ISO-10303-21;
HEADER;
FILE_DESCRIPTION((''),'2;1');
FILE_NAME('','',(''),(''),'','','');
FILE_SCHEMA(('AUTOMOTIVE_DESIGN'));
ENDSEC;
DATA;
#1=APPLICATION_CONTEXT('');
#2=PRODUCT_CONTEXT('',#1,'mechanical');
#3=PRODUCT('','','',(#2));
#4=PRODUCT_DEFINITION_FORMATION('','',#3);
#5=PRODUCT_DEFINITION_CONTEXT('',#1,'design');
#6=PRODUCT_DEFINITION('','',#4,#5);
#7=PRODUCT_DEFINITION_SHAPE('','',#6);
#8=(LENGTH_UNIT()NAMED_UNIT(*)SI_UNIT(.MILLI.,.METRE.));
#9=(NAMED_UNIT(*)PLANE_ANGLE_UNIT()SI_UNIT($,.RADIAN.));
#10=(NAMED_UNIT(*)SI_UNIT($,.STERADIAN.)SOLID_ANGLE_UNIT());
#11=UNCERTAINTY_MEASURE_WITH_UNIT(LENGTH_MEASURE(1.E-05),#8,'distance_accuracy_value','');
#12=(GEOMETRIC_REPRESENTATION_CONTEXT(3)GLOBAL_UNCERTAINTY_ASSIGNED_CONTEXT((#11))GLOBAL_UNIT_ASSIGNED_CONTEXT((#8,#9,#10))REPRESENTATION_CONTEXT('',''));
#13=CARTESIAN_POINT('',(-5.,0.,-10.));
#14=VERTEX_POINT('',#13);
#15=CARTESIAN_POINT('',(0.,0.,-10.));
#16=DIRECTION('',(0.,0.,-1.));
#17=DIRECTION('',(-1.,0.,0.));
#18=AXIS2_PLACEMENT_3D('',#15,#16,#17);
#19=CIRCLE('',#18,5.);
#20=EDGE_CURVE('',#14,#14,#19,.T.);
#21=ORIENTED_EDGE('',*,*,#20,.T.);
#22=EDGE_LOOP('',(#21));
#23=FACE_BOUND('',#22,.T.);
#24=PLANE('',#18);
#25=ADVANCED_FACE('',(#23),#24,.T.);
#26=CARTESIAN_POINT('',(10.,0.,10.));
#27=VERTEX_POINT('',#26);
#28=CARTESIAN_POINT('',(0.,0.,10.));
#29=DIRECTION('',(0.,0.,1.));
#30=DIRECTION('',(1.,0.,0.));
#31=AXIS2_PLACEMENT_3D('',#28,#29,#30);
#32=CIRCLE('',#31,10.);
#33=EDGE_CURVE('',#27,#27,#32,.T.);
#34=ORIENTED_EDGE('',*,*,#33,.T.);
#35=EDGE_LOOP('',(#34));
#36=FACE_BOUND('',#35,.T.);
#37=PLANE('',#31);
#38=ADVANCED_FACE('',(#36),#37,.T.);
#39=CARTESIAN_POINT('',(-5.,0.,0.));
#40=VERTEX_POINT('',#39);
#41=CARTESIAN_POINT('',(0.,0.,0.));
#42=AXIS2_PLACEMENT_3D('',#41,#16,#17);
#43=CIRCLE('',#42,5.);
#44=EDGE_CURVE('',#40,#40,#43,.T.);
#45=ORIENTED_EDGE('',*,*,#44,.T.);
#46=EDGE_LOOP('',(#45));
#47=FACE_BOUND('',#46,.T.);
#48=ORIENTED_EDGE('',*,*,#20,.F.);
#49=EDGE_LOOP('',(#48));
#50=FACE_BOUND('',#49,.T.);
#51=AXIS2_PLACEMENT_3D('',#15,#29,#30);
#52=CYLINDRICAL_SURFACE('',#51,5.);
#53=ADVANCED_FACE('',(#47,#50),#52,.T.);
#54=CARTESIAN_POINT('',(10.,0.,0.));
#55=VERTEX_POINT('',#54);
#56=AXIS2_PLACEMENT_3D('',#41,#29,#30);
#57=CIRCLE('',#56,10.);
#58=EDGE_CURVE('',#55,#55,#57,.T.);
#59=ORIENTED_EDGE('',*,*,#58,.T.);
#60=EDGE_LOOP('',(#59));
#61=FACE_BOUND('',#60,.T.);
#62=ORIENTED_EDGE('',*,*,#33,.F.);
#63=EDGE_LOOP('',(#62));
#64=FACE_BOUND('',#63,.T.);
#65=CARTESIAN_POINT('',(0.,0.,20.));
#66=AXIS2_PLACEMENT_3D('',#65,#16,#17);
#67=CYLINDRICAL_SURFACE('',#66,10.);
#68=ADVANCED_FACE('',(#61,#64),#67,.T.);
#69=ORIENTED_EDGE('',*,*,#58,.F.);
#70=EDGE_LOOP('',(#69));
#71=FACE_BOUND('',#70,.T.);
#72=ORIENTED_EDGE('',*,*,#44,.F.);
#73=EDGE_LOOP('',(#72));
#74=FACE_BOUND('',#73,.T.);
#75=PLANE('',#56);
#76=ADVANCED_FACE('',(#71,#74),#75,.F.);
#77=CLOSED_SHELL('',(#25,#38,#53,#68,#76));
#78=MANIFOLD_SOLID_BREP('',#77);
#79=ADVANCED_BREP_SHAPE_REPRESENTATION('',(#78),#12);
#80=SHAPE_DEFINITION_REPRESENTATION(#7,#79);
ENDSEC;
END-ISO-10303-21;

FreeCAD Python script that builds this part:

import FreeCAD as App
import Part
import Sketcher

V = App.Vector

doc = App.newDocument("Part")
body = doc.addObject("PartDesign::Body", "Body")

sketch1 = body.newObject("Sketcher::SketchObject", "Sketch")
sketch1.AttachmentSupport = (doc.getObject("XY_Plane"), [""])
sketch1.MapMode = "FlatFace"
sketch1.addGeometry(Part.Circle(V(0, 0, 0), V(0, 0, 1), 10), False)
sketch1.addConstraint([
    Sketcher.Constraint("Coincident", 0, 3, -1, 1),
    Sketcher.Constraint("Diameter", 0, 20.0),
])
pad1 = body.newObject("PartDesign::Pad", "Pad")
pad1.Profile = sketch1
pad1.Length = 20

sketch2 = body.newObject("Sketcher::SketchObject", "Sketch001")
sketch2.AttachmentSupport = (doc.getObject("XY_Plane"), [""])
sketch2.MapMode = "FlatFace"
sketch2.addGeometry(Part.Circle(V(0, 0, 0), V(0, 0, 1), 5), False)
sketch2.addConstraint([
    Sketcher.Constraint("Coincident", 0, 3, -1, 1),
    Sketcher.Constraint("Diameter", 0, 10.0),
])
pad2 = body.newObject("PartDesign::Pad", "Pad001")
pad2.Profile = sketch2
pad2.Length = 10
pad2.Reversed = True

sketch3 = body.newObject("Sketcher::SketchObject", "Sketch002")
sketch3.AttachmentSupport = (doc.getObject("XY_Plane"), [""])
sketch3.MapMode = "FlatFace"
sketch3.AttachmentOffset = App.Placement(V(0, 0, 20), App.Rotation())
sketch3.addGeometry(Part.Circle(V(0, 0, 0), V(0, 0, 1), 10), False)
sketch3.addConstraint([
    Sketcher.Constraint("Coincident", 0, 3, -1, 1),
    Sketcher.Constraint("Diameter", 0, 20.0),
])
pocket1 = body.newObject("PartDesign::Pocket", "Pocket")
pocket1.Profile = sketch3
pocket1.Length = 10

doc.recompute()
